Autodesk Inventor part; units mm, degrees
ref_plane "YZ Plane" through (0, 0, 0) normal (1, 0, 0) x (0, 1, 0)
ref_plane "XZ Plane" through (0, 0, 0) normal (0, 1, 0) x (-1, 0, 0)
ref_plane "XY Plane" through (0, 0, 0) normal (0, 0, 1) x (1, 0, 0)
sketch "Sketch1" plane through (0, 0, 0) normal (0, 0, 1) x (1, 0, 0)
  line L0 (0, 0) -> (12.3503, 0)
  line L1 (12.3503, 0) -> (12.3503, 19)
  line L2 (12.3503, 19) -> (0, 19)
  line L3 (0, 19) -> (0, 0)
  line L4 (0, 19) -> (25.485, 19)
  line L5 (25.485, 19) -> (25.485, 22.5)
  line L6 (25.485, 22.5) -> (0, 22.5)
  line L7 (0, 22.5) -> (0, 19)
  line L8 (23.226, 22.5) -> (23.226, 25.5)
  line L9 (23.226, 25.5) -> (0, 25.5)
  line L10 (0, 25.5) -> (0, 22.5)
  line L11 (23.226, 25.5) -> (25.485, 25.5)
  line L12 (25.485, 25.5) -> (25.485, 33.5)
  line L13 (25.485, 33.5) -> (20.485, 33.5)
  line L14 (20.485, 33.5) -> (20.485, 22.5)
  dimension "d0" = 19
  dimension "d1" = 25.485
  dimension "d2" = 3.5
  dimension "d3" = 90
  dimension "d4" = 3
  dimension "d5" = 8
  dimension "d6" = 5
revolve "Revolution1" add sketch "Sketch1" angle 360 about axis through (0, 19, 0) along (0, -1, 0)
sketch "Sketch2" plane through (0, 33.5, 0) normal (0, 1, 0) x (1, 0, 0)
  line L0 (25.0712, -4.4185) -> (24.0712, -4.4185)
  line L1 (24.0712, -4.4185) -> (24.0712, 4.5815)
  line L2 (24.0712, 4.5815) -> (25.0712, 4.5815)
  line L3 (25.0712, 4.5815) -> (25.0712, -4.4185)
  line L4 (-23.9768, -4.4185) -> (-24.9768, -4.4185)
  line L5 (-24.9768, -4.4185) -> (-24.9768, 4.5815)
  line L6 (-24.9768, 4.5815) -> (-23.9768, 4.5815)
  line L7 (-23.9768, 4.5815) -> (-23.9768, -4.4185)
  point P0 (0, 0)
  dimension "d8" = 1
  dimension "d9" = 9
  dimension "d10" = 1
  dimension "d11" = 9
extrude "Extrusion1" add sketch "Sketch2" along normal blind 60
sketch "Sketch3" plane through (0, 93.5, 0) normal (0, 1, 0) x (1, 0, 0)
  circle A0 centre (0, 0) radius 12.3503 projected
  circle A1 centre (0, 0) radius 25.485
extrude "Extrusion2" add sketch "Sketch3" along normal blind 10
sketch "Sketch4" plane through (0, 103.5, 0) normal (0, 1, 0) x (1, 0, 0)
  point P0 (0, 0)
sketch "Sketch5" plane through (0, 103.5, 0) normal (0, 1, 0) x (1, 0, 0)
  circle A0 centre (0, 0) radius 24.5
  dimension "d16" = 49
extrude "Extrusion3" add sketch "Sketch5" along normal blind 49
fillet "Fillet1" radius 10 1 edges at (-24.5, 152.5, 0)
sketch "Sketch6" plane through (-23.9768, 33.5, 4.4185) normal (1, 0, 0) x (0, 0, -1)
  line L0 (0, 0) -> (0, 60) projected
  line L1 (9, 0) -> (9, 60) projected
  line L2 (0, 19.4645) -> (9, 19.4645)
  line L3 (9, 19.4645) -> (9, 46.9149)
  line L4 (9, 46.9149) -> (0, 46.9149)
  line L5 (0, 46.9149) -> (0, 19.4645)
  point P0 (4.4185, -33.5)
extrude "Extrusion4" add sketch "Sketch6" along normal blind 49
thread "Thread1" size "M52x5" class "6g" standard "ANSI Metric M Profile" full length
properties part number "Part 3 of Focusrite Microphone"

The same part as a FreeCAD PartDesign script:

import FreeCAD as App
import Part
import Sketcher

V = App.Vector
Q = App.Units.Quantity


def edges_at(feature, points):
    """Names of the edges that pass closest to the given points."""
    edges = feature.Shape.Edges
    near = lambda p: min(range(len(edges)), key=lambda i: edges[i].distToShape(Part.Vertex(*p))[0])
    return sorted({f"Edge{near(p) + 1}" for p in points})


def add_polygon(sketch, points):
    """Adds a closed chain of lines whose ends are joined by coincident constraints."""
    first, n = sketch.GeometryCount, len(points)
    for a, b in zip(points, points[1:] + points[:1]):
        sketch.addGeometry(Part.LineSegment(App.Vector(*a, 0), App.Vector(*b, 0)), False)
    for i in range(n):
        sketch.addConstraint(Sketcher.Constraint("Coincident", first + i, 2, first + (i + 1) % n, 1))

doc = App.newDocument("Part")
body = doc.addObject("PartDesign::Body", "Body")

# Sketch on XY plane
sketch1 = body.newObject("Sketcher::SketchObject", "Sketch")
sketch1.AttachmentSupport = (doc.getObject("XY_Plane"), [""])
sketch1.MapMode = "FlatFace"
add_polygon(sketch1, [(0, 0), (12.4, 0), (12.4, 19), (25.5, 19), (25.5, 22.5), (23.2, 22.5), (23.2, 25.5), (25.5, 25.5), (25.5, 33.5), (20.5, 33.5), (20.5, 25.5), (0, 25.5)])  # lines 0-11
sketch1.addConstraint([
    Sketcher.Constraint("Horizontal", 0),
    Sketcher.Constraint("Vertical", 1),
    Sketcher.Constraint("Horizontal", 2),
    Sketcher.Constraint("Vertical", 3),
    Sketcher.Constraint("Horizontal", 4),
    Sketcher.Constraint("Vertical", 5),
    Sketcher.Constraint("Horizontal", 6),
    Sketcher.Constraint("Vertical", 7),
    Sketcher.Constraint("Horizontal", 8),
    Sketcher.Constraint("Vertical", 9),
    Sketcher.Constraint("Horizontal", 10),
    Sketcher.Constraint("Vertical", 11),
    Sketcher.Constraint("Coincident", 11, 2, -1, 1),
    Sketcher.Constraint("Horizontal", 6, 2, 9, 2),
    Sketcher.Constraint("Vertical", 3, 2, 6, 2),
    Sketcher.Constraint("DistanceX", 8, 2, 8, 1, Q("5 mm")),
    Sketcher.Constraint("DistanceY", 1, 1, 1, 2, Q("19 mm")),
    Sketcher.Constraint("DistanceY", 5, 1, 5, 2, Q("3 mm")),
    Sketcher.Constraint("DistanceY", 7, 1, 7, 2, Q("8 mm")),
    Sketcher.Constraint("DistanceY", 3, 1, 3, 2, Q("3.5 mm")),
    Sketcher.Constraint("DistanceX", -1, 1, 2, 2, Q("25.485 mm")),
    Sketcher.Constraint("DistanceX", 4, 2, 4, 1, Q("2.259 mm")),
    Sketcher.Constraint("DistanceX", 0, 1, 0, 2, Q("12.3503 mm")),
])
revolution = body.newObject("PartDesign::Revolution", "Revolution")
revolution.Profile = sketch1
revolution.ReferenceAxis = (sketch1, ["V_Axis"])
revolution.Angle = 360

# Sketch on XZ plane
sketch2 = body.newObject("Sketcher::SketchObject", "Sketch001")
sketch2.AttachmentSupport = (doc.getObject("XZ_Plane"), [""])
sketch2.MapMode = "FlatFace"
sketch2.AttachmentOffset = App.Placement(V(0, 0, -33.5), App.Rotation())
add_polygon(sketch2, [(24.1, 4.4), (25.1, 4.4), (25.1, -4.6), (24.1, -4.6)])  # lines 0-3
add_polygon(sketch2, [(-25, 4.4), (-24, 4.4), (-24, -4.6), (-25, -4.6)])  # lines 4-7
sketch2.addConstraint([
    Sketcher.Constraint("Horizontal", 0),
    Sketcher.Constraint("Vertical", 1),
    Sketcher.Constraint("Horizontal", 2),
    Sketcher.Constraint("Vertical", 3),
    Sketcher.Constraint("Horizontal", 4),
    Sketcher.Constraint("Vertical", 5),
    Sketcher.Constraint("Horizontal", 6),
    Sketcher.Constraint("Vertical", 7),
    Sketcher.Constraint("Horizontal", 3, 2, 4, 2),
    Sketcher.Constraint("Horizontal", 2, 2, 5, 2),
    Sketcher.Constraint("Equal", 2, 4),
    Sketcher.Constraint("DistanceX", 0, 1, 0, 2, Q("1 mm")),
    Sketcher.Constraint("DistanceY", 1, 2, 1, 1, Q("9 mm")),
    Sketcher.Constraint("DistanceX", 4, 2, 3, 2, Q("48.048 mm")),
    Sketcher.Constraint("DistanceX", -1, 1, 0, 2, Q("25.0712 mm")),
    Sketcher.Constraint("DistanceY", -1, 1, 0, 2, Q("4.4185 mm")),
])
pad1 = body.newObject("PartDesign::Pad", "Pad")
pad1.Profile = sketch2
pad1.Length = 60
pad1.Reversed = True

# Sketch on XZ plane
sketch3 = body.newObject("Sketcher::SketchObject", "Sketch002")
sketch3.AttachmentSupport = (doc.getObject("XZ_Plane"), [""])
sketch3.MapMode = "FlatFace"
sketch3.AttachmentOffset = App.Placement(V(0, 0, -93.5), App.Rotation())
sketch3.addGeometry([
    Part.Circle(V(0, 0, 0), V(0, 0, 1), 25),
    Part.Circle(V(0, 0, 0), V(0, 0, 1), 12),
], False)
sketch3.addConstraint([
    Sketcher.Constraint("Coincident", 0, 3, -1, 1),
    Sketcher.Constraint("Coincident", 1, 3, -1, 1),
    Sketcher.Constraint("Diameter", 0, Q("50.97 mm")),
    Sketcher.Constraint("Diameter", 1, Q("24.7006 mm")),
])
pad2 = body.newObject("PartDesign::Pad", "Pad001")
pad2.Profile = sketch3
pad2.Length = 10
pad2.Reversed = True

# Sketch on XZ plane
sketch4 = body.newObject("Sketcher::SketchObject", "Sketch003")
sketch4.AttachmentSupport = (doc.getObject("XZ_Plane"), [""])
sketch4.MapMode = "FlatFace"
sketch4.AttachmentOffset = App.Placement(V(0, 0, -103.5), App.Rotation())
sketch4.addGeometry(Part.Circle(V(0, 0, 0), V(0, 0, 1), 24), False)
sketch4.addConstraint([
    Sketcher.Constraint("Coincident", 0, 3, -1, 1),
    Sketcher.Constraint("Diameter", 0, Q("49 mm")),
])
pad3 = body.newObject("PartDesign::Pad", "Pad002")
pad3.Profile = sketch4
pad3.Length = 49
pad3.Reversed = True
doc.recompute()

fillet = body.newObject("PartDesign::Fillet", "Fillet")
fillet.Base = (pad3, edges_at(pad3, [(-24.5, 152.5, 0)]))
fillet.Radius = 10

# Sketch on YZ plane
sketch5 = body.newObject("Sketcher::SketchObject", "Sketch004")
sketch5.AttachmentSupport = (doc.getObject("YZ_Plane"), [""])
sketch5.MapMode = "FlatFace"
sketch5.AttachmentOffset = App.Placement(V(0, 0, -23.9768), App.Rotation())
add_polygon(sketch5, [(80, 4), (53, 4), (53, -5), (80, -5)])  # lines 0-3
sketch5.addConstraint([
    Sketcher.Constraint("Horizontal", 0),
    Sketcher.Constraint("Vertical", 1),
    Sketcher.Constraint("Horizontal", 2),
    Sketcher.Constraint("Vertical", 3),
    Sketcher.Constraint("DistanceY", 1, 2, 1, 1, Q("9 mm")),
    Sketcher.Constraint("DistanceX", 0, 2, 0, 1, Q("27.4504 mm")),
    Sketcher.Constraint("DistanceX", -1, 1, 2, 2, Q("80.415 mm")),
    Sketcher.Constraint("DistanceY", -1, 1, 0, 2, Q("4.4185 mm")),
])
pad4 = body.newObject("PartDesign::Pad", "Pad003")
pad4.Profile = sketch5
pad4.Length = 49

doc.recompute()
